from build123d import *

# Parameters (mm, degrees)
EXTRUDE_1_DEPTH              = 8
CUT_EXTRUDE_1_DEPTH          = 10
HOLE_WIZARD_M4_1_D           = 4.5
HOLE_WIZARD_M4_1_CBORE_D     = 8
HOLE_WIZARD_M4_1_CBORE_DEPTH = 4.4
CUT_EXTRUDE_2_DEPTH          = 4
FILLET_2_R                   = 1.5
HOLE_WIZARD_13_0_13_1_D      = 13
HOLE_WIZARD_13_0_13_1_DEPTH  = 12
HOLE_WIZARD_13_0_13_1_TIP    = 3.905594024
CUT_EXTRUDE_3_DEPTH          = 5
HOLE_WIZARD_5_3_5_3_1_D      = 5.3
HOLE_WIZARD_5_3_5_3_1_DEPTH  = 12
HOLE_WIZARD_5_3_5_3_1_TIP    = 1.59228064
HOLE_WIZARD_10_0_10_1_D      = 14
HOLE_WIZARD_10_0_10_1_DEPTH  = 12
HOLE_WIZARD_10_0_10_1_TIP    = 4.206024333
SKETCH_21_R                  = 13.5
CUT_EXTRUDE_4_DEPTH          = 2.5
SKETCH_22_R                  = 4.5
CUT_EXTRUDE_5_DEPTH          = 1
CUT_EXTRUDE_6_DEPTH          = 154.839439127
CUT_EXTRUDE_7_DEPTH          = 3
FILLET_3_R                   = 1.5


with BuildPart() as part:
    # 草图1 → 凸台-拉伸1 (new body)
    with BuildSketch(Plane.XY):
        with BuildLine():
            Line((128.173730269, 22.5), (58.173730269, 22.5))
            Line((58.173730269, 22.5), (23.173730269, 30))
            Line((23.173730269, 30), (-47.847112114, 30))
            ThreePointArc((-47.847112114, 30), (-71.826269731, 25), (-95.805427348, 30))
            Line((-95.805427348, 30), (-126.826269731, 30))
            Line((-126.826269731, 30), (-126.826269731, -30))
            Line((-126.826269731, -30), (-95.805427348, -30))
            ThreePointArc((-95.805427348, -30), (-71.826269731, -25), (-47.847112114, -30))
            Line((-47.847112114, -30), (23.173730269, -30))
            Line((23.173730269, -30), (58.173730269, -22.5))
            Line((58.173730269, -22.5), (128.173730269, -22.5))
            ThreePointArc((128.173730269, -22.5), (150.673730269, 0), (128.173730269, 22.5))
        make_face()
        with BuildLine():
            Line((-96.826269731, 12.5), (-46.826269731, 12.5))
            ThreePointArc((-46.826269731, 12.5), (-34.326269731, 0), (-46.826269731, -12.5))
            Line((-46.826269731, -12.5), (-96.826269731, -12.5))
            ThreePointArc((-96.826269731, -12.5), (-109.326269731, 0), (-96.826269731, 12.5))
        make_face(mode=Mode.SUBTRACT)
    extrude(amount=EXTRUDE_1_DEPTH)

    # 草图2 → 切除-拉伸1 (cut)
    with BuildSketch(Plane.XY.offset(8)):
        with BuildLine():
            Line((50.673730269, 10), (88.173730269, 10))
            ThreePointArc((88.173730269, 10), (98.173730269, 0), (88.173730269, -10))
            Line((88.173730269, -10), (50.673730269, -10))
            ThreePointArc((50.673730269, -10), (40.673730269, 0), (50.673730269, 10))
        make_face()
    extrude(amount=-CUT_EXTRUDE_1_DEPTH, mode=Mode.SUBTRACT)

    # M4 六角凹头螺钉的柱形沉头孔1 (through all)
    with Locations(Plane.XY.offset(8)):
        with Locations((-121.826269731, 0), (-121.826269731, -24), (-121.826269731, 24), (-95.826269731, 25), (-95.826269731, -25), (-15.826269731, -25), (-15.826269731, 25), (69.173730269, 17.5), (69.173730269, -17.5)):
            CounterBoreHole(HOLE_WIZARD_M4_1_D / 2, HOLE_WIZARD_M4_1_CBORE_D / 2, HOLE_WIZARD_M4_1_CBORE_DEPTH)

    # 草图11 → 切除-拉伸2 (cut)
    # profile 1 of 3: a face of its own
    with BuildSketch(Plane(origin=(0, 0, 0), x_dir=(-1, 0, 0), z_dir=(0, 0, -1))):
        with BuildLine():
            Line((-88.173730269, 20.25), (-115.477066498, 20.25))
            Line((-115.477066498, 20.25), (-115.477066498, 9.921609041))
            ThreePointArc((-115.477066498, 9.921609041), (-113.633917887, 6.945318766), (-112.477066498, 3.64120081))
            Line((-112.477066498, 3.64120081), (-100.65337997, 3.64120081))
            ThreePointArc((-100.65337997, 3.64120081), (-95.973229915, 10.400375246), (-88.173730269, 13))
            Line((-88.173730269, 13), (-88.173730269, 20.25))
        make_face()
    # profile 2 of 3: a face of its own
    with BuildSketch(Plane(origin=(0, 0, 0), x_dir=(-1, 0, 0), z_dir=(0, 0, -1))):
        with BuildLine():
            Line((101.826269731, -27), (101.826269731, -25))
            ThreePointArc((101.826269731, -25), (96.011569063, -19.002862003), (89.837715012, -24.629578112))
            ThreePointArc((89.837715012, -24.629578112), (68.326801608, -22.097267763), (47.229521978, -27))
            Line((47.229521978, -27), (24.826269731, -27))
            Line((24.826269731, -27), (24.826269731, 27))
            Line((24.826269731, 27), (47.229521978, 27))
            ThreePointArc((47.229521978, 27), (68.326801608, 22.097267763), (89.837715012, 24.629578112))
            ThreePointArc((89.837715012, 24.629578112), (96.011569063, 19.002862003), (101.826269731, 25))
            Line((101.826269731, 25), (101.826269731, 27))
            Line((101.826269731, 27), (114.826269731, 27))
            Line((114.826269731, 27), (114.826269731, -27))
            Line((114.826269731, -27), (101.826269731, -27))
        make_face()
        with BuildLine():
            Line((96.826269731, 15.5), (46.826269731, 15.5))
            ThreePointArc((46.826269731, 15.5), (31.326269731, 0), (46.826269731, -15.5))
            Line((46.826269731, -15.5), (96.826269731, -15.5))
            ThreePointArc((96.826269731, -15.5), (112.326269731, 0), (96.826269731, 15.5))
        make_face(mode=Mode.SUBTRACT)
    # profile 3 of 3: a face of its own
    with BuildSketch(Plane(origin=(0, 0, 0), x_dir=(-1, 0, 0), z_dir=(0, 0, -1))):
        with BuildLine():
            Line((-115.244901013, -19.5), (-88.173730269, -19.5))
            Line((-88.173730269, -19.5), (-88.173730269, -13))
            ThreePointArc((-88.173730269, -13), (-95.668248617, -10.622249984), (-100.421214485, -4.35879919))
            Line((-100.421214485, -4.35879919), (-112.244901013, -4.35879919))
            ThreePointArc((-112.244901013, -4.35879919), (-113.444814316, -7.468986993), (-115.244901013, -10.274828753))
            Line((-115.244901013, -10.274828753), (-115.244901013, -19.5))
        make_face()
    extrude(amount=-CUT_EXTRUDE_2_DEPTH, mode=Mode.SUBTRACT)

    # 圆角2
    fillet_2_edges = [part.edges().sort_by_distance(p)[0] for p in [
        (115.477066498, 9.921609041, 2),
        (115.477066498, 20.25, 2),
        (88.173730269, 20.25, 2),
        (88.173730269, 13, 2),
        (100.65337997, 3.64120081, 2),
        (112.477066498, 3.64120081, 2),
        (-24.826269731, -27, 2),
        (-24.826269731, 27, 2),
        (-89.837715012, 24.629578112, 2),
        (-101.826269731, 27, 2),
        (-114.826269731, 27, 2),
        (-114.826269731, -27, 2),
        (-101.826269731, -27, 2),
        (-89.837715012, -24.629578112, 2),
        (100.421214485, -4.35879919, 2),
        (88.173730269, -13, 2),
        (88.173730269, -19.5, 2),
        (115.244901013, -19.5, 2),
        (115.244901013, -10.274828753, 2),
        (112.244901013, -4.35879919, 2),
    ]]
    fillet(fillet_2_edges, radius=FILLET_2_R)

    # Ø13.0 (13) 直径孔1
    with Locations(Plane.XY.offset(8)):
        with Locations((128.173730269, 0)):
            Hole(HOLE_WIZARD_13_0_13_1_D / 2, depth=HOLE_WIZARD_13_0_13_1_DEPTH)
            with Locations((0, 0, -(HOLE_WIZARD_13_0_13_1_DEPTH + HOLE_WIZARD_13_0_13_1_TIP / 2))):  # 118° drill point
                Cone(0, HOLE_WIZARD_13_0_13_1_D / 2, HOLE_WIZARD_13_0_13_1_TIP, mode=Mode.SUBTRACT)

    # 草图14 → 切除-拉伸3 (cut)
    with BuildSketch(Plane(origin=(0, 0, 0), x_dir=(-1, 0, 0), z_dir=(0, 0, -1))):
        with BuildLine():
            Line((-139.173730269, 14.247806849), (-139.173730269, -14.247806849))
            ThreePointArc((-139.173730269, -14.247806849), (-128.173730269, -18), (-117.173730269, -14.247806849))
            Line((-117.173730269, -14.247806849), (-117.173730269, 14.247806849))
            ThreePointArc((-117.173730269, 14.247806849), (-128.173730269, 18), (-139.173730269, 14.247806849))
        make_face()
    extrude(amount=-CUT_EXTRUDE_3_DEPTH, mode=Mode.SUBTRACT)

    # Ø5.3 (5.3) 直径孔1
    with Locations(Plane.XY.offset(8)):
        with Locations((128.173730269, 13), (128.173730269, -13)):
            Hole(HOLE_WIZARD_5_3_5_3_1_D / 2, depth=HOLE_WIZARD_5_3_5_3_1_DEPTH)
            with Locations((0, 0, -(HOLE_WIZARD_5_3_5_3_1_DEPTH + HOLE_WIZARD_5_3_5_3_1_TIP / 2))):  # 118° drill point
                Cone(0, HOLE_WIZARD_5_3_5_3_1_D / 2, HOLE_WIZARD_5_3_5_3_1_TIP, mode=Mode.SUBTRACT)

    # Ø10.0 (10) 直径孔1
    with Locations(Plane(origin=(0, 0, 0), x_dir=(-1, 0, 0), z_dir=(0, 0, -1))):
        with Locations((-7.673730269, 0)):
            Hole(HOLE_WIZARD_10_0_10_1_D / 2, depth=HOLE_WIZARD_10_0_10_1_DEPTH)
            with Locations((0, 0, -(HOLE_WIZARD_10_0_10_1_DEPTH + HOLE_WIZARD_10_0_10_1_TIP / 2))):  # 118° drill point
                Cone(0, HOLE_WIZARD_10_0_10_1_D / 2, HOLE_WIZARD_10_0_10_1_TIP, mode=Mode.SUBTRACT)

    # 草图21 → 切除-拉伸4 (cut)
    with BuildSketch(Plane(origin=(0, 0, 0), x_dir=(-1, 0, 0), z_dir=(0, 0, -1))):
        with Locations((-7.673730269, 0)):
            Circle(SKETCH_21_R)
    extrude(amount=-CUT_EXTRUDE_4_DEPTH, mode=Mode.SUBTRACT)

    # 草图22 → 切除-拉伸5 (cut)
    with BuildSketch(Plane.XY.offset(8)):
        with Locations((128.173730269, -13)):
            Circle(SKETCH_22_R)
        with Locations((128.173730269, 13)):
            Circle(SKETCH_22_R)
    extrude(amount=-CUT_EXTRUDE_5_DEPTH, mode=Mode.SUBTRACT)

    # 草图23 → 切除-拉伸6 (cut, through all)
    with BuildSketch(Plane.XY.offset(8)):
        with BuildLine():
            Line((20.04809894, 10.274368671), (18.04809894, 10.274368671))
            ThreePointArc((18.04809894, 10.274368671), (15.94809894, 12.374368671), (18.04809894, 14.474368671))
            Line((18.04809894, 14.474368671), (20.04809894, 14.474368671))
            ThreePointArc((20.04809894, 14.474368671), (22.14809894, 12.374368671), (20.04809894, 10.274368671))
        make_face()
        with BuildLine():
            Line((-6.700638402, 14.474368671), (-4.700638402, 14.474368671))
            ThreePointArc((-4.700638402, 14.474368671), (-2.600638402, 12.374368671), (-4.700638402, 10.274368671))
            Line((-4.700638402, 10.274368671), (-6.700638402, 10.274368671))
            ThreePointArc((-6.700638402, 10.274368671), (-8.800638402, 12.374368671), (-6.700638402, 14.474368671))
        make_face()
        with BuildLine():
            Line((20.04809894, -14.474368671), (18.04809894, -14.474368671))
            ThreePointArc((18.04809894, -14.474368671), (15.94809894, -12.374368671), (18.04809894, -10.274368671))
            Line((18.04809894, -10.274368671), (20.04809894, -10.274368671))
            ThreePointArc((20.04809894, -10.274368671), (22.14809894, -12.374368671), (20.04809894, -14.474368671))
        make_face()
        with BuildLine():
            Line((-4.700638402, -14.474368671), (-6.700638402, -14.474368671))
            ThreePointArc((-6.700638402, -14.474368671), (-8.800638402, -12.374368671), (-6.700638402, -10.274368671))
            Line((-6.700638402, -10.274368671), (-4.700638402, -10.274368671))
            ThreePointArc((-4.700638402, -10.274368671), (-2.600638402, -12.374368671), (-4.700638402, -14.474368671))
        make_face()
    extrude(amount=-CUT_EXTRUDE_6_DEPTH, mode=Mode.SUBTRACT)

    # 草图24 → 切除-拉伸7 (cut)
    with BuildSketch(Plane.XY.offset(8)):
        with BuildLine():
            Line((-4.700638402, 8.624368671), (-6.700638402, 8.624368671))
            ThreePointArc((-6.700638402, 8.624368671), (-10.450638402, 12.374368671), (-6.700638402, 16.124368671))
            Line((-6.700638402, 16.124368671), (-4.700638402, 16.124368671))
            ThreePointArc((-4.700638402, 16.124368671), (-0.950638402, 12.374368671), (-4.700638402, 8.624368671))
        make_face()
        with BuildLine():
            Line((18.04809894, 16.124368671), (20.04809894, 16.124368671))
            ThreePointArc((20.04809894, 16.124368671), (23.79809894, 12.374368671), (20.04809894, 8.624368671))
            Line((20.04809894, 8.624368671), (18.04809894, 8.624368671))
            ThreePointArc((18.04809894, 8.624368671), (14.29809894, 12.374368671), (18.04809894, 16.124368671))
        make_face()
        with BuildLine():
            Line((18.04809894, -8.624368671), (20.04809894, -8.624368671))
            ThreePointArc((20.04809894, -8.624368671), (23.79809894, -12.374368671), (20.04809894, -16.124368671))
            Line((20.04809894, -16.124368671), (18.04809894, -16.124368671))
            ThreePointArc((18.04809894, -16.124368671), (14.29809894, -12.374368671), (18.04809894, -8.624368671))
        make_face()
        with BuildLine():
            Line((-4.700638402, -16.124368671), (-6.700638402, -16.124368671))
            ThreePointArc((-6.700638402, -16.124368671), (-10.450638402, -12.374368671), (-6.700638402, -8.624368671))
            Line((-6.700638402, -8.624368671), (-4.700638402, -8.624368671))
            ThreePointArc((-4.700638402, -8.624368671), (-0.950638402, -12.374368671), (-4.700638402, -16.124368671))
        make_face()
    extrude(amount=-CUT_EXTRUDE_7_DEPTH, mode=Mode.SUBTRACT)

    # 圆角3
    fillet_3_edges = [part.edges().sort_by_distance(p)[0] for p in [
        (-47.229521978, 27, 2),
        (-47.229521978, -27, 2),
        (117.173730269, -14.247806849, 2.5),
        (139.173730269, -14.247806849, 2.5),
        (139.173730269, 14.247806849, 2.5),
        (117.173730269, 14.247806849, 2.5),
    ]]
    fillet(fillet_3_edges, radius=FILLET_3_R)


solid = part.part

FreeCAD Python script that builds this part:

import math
import FreeCAD as App
import Part
import Sketcher


def edges_at(feature, points):
    """Names of the edges that pass closest to the given points."""
    edges = feature.Shape.Edges
    near = lambda p: min(range(len(edges)), key=lambda i: edges[i].distToShape(Part.Vertex(*p))[0])
    return sorted({f"Edge{near(p) + 1}" for p in points})

doc = App.newDocument("Part")
body = doc.addObject("PartDesign::Body", "Body")

# Sketch on XY plane
sketch1 = body.newObject("Sketcher::SketchObject", "Sketch")
sketch1.AttachmentSupport = (doc.getObject("XY_Plane"), [""])
sketch1.MapMode = "FlatFace"
sketch1.addGeometry([
    Part.LineSegment(App.Vector(128, 22, 0), App.Vector(58, 22, 0)),  # 0
    Part.LineSegment(App.Vector(58, 22, 0), App.Vector(23, 30, 0)),  # 1
    Part.LineSegment(App.Vector(23, 30, 0), App.Vector(-48, 30, 0)),  # 2
    Part.ArcOfCircle(Part.Circle(App.Vector(-72, 85, 0), App.Vector(0, 0, 1), 60), math.radians(-114), math.radians(-66)),  # 3
    Part.LineSegment(App.Vector(-96, 30, 0), App.Vector(-127, 30, 0)),  # 4
    Part.LineSegment(App.Vector(-127, 30, 0), App.Vector(-127, -30, 0)),  # 5
    Part.LineSegment(App.Vector(-127, -30, 0), App.Vector(-96, -30, 0)),  # 6
    Part.ArcOfCircle(Part.Circle(App.Vector(-72, -85, 0), App.Vector(0, 0, 1), 60), math.radians(66), math.radians(114)),  # 7
    Part.LineSegment(App.Vector(-48, -30, 0), App.Vector(23, -30, 0)),  # 8
    Part.LineSegment(App.Vector(23, -30, 0), App.Vector(58, -22, 0)),  # 9
    Part.LineSegment(App.Vector(58, -22, 0), App.Vector(128, -22, 0)),  # 10
    Part.ArcOfCircle(Part.Circle(App.Vector(128, 0, 0), App.Vector(0, 0, 1), 22), math.radians(-90), math.radians(90)),  # 11
    Part.ArcOfCircle(Part.Circle(App.Vector(-97, 0, 0), App.Vector(0, 0, 1), 12), math.radians(90), math.radians(270)),  # 12
    Part.LineSegment(App.Vector(-97, 12, 0), App.Vector(-47, 12, 0)),  # 13
    Part.ArcOfCircle(Part.Circle(App.Vector(-47, 0, 0), App.Vector(0, 0, 1), 12), math.radians(-90), math.radians(90)),  # 14
    Part.LineSegment(App.Vector(-47, -12, 0), App.Vector(-97, -12, 0)),  # 15
], False)
sketch1.addConstraint([
    Sketcher.Constraint("Coincident", 0, 2, 1, 1),
    Sketcher.Constraint("Coincident", 1, 2, 2, 1),
    Sketcher.Constraint("Coincident", 2, 2, 3, 2),
    Sketcher.Constraint("Coincident", 3, 1, 4, 1),
    Sketcher.Constraint("Coincident", 4, 2, 5, 1),
    Sketcher.Constraint("Coincident", 5, 2, 6, 1),
    Sketcher.Constraint("Coincident", 6, 2, 7, 2),
    Sketcher.Constraint("Coincident", 7, 1, 8, 1),
    Sketcher.Constraint("Coincident", 8, 2, 9, 1),
    Sketcher.Constraint("Coincident", 9, 2, 10, 1),
    Sketcher.Constraint("Tangent", 10, 2, 11, 1),
    Sketcher.Constraint("Tangent", 11, 2, 0, 1),
    Sketcher.Constraint("Tangent", 12, 1, 13, 1),
    Sketcher.Constraint("Tangent", 13, 2, 14, 2),
    Sketcher.Constraint("Tangent", 14, 1, 15, 1),
    Sketcher.Constraint("Tangent", 15, 2, 12, 2),
    Sketcher.Constraint("Horizontal", 0),
    Sketcher.Constraint("Horizontal", 2),
    Sketcher.Constraint("Horizontal", 4),
    Sketcher.Constraint("Vertical", 5),
    Sketcher.Constraint("Horizontal", 6),
    Sketcher.Constraint("Horizontal", 8),
    Sketcher.Constraint("Horizontal", 10),
    Sketcher.Constraint("Horizontal", 13),
    Sketcher.Constraint("Horizontal", 15),
    Sketcher.Constraint("Equal", 3, 7),
    Sketcher.Constraint("Symmetric", 3, 3, 7, 3, -1),
    Sketcher.Constraint("Symmetric", 1, 2, 8, 2, -1),
    Sketcher.Constraint("Symmetric", 0, 2, 9, 2, -1),
    Sketcher.Constraint("PointOnObject", 12, 3, -1),
    Sketcher.Constraint("Horizontal", 2, 2, 3, 1),
    Sketcher.Constraint("Horizontal", 6, 2, 7, 1),
    Sketcher.Constraint("Radius", 3, 60.0),
    Sketcher.Constraint("Radius", 11, 22.5),
    Sketcher.Constraint("Radius", 12, 12.5),
    Sketcher.Constraint("DistanceX", 0, 2, 0, 1, 70.0),
    Sketcher.Constraint("DistanceX", 13, 1, 13, 2, 50.0),
    Sketcher.Constraint("DistanceY", 5, 2, 5, 1, 60.0),
    Sketcher.Constraint("DistanceY", -1, 1, 3, 3, 85.0),
    Sketcher.Constraint("DistanceX", 3, 3, 11, 3, 200.0),
    Sketcher.Constraint("DistanceX", 12, 3, 3, 3, 25.0),
    Sketcher.Constraint("DistanceX", 1, 2, 0, 2, 35.0),
    Sketcher.Constraint("DistanceX", 4, 2, 12, 3, 30.0),
    Sketcher.Constraint("DistanceX", 3, 3, -1, 1, 71.82627),
])
pad1 = body.newObject("PartDesign::Pad", "Pad")
pad1.Profile = sketch1
pad1.Length = 8

# Sketch on XY plane
sketch2 = body.newObject("Sketcher::SketchObject", "Sketch001")
sketch2.AttachmentSupport = (doc.getObject("XY_Plane"), [""])
sketch2.MapMode = "FlatFace"
sketch2.AttachmentOffset = App.Placement(App.Vector(0, 0, 8), App.Rotation())
sketch2.addGeometry([
    Part.LineSegment(App.Vector(88, 10, 0), App.Vector(51, 10, 0)),
    Part.ArcOfCircle(Part.Circle(App.Vector(51, 0, 0), App.Vector(0, 0, 1), 10), math.radians(90), math.radians(270)),
    Part.LineSegment(App.Vector(51, -10, 0), App.Vector(88, -10, 0)),
    Part.ArcOfCircle(Part.Circle(App.Vector(88, 0, 0), App.Vector(0, 0, 1), 10), math.radians(-90), math.radians(90)),
], False)
sketch2.addConstraint([
    Sketcher.Constraint("Tangent", 0, 2, 1, 1),
    Sketcher.Constraint("Tangent", 1, 2, 2, 1),
    Sketcher.Constraint("Tangent", 2, 2, 3, 1),
    Sketcher.Constraint("Tangent", 3, 2, 0, 1),
    Sketcher.Constraint("Horizontal", 0),
    Sketcher.Constraint("Horizontal", 2),
    Sketcher.Constraint("PointOnObject", 1, 3, -1),
    Sketcher.Constraint("Radius", 1, 10.0),
    Sketcher.Constraint("DistanceX", 0, 2, 0, 1, 37.5),
    Sketcher.Constraint("DistanceX", -1, 1, 1, 3, 50.67373),
])
pocket1 = body.newObject("PartDesign::Pocket", "Pocket")
pocket1.Profile = sketch2
pocket1.Length = 10

# Sketch on XY plane
sketch3 = body.newObject("Sketcher::SketchObject", "Sketch002")
sketch3.AttachmentSupport = (doc.getObject("XY_Plane"), [""])
sketch3.MapMode = "FlatFace"
sketch3.AttachmentOffset = App.Placement(App.Vector(0, 0, 8), App.Rotation())
sketch3.addGeometry([
    Part.Circle(App.Vector(-121.8, 0, 0), App.Vector(0, 0, 1), 2.2),  # 0
    Part.Circle(App.Vector(-121.8, -24, 0), App.Vector(0, 0, 1), 2.2),  # 1
    Part.Circle(App.Vector(-121.8, 24, 0), App.Vector(0, 0, 1), 2.2),  # 2
    Part.Circle(App.Vector(-95.8, 25, 0), App.Vector(0, 0, 1), 2.2),  # 3
    Part.Circle(App.Vector(-95.8, -25, 0), App.Vector(0, 0, 1), 2.2),  # 4
    Part.Circle(App.Vector(-15.8, -25, 0), App.Vector(0, 0, 1), 2.2),  # 5
    Part.Circle(App.Vector(-15.8, 25, 0), App.Vector(0, 0, 1), 2.2),  # 6
    Part.Circle(App.Vector(69.2, 17.5, 0), App.Vector(0, 0, 1), 2.2),  # 7
    Part.Circle(App.Vector(69.2, -17.5, 0), App.Vector(0, 0, 1), 2.2),  # 8
], False)
sketch3.addConstraint([
    Sketcher.Constraint("Equal", 0, 1),
    Sketcher.Constraint("Equal", 1, 2),
    Sketcher.Constraint("Equal", 2, 3),
    Sketcher.Constraint("Equal", 3, 4),
    Sketcher.Constraint("Equal", 4, 5),
    Sketcher.Constraint("Equal", 5, 6),
    Sketcher.Constraint("Equal", 6, 7),
    Sketcher.Constraint("Equal", 7, 8),
    Sketcher.Constraint("Symmetric", 1, 3, 2, 3, -1),
    Sketcher.Constraint("Symmetric", 3, 3, 4, 3, -1),
    Sketcher.Constraint("Symmetric", 5, 3, 6, 3, -1),
    Sketcher.Constraint("Symmetric", 7, 3, 8, 3, -1),
    Sketcher.Constraint("PointOnObject", 0, 3, -1),
    Sketcher.Constraint("Horizontal", 4, 3, 5, 3),
    Sketcher.Constraint("Vertical", 0, 3, 1, 3),
    Sketcher.Constraint("Diameter", 0, 4.5),
    Sketcher.Constraint("DistanceY", 1, 3, -1, 1, 24.0),
    Sketcher.Constraint("DistanceY", -1, 1, 3, 3, 25.0),
    Sketcher.Constraint("DistanceX", 2, 3, 3, 3, 26.0),
    Sketcher.Constraint("DistanceX", 4, 3, 5, 3, 80.0),
    Sketcher.Constraint("DistanceX", 6, 3, 7, 3, 85.0),
    Sketcher.Constraint("DistanceY", 8, 3, 7, 3, 35.0),
    Sketcher.Constraint("DistanceX", 0, 3, -1, 1, 121.82627),
])
doc.recompute()
hole = body.newObject("PartDesign::Hole", "Hole")
hole.Profile = sketch3
hole.ThreadType = "None"
hole.Diameter = 4.5
hole.DepthType = "ThroughAll"
hole.HoleCutType = "Counterbore"
hole.HoleCutDiameter = 8
hole.HoleCutDepth = 4.4

# Sketch on XY plane
sketch4 = body.newObject("Sketcher::SketchObject", "Sketch003")
sketch4.AttachmentSupport = (doc.getObject("XY_Plane"), [""])
sketch4.MapMode = "FlatFace"
sketch4.addGeometry([
    Part.LineSegment(App.Vector(88.2, 20.2, 0), App.Vector(115.5, 20.2, 0)),  # 0
    Part.LineSegment(App.Vector(115.5, 20.2, 0), App.Vector(115.5, 9.9, 0)),  # 1
    Part.ArcOfCircle(Part.Circle(App.Vector(128.2, 0, 0), App.Vector(0, 0, 1), 16.1), math.radians(142), math.radians(167)),  # 2
    Part.LineSegment(App.Vector(112.5, 3.6, 0), App.Vector(100.7, 3.6, 0)),  # 3
    Part.ArcOfCircle(Part.Circle(App.Vector(88.2, 0, 0), App.Vector(0, 0, 1), 13), math.radians(16), math.radians(90)),  # 4
    Part.LineSegment(App.Vector(88.2, 13, 0), App.Vector(88.2, 20.2, 0)),  # 5
    Part.LineSegment(App.Vector(-101.8, -25, 0), App.Vector(-101.8, -27, 0)),  # 6
    Part.LineSegment(App.Vector(-101.8, -27, 0), App.Vector(-114.8, -27, 0)),  # 7
    Part.LineSegment(App.Vector(-114.8, -27, 0), App.Vector(-114.8, 27, 0)),  # 8
    Part.LineSegment(App.Vector(-114.8, 27, 0), App.Vector(-101.8, 27, 0)),  # 9
    Part.LineSegment(App.Vector(-101.8, 27, 0), App.Vector(-101.8, 25, 0)),  # 10
    Part.ArcOfCircle(Part.Circle(App.Vector(-95.8, 25, 0), App.Vector(0, 0, 1), 6), math.radians(180), math.radians(356)),  # 11
    Part.ArcOfCircle(Part.Circle(App.Vector(-71.8, 85, 0), App.Vector(0, 0, 1), 63), math.radians(-107), math.radians(-67)),  # 12
    Part.LineSegment(App.Vector(-47.2, 27, 0), App.Vector(-24.8, 27, 0)),  # 13
    Part.LineSegment(App.Vector(-24.8, 27, 0), App.Vector(-24.8, -27, 0)),  # 14
    Part.LineSegment(App.Vector(-24.8, -27, 0), App.Vector(-47.2, -27, 0)),  # 15
    Part.ArcOfCircle(Part.Circle(App.Vector(-71.8, -85, 0), App.Vector(0, 0, 1), 63), math.radians(67), math.radians(107)),  # 16
    Part.ArcOfCircle(Part.Circle(App.Vector(-95.8, -25, 0), App.Vector(0, 0, 1), 6), math.radians(4), math.radians(180)),  # 17
    Part.ArcOfCircle(Part.Circle(App.Vector(-96.8, 0, 0), App.Vector(0, 0, 1), 15.5), math.radians(90), math.radians(270)),  # 18
    Part.LineSegment(App.Vector(-96.8, -15.5, 0), App.Vector(-46.8, -15.5, 0)),  # 19
    Part.ArcOfCircle(Part.Circle(App.Vector(-46.8, 0, 0), App.Vector(0, 0, 1), 15.5), math.radians(-90), math.radians(90)),  # 20
    Part.LineSegment(App.Vector(-46.8, 15.5, 0), App.Vector(-96.8, 15.5, 0)),  # 21
    Part.LineSegment(App.Vector(115.2, -19.5, 0), App.Vector(88.2, -19.5, 0)),  # 22
    Part.LineSegment(App.Vector(88.2, -19.5, 0), App.Vector(88.2, -13, 0)),  # 23
    Part.ArcOfCircle(Part.Circle(App.Vector(88.2, 0, 0), App.Vector(0, 0, 1), 13), math.radians(-90), math.radians(-20)),  # 24
    Part.LineSegment(App.Vector(100.4, -4.4, 0), App.Vector(112.2, -4.4, 0)),  # 25
    Part.ArcOfCircle(Part.Circle(App.Vector(128.2, 0, 0), App.Vector(0, 0, 1), 16.5), math.radians(-165), math.radians(-142)),  # 26
    Part.LineSegment(App.Vector(115.2, -10.3, 0), App.Vector(115.2, -19.5, 0)),  # 27
], False)
sketch4.addConstraint([
    Sketcher.Constraint("Coincident", 0, 2, 1, 1),
    Sketcher.Constraint("Coincident", 1, 2, 2, 1),
    Sketcher.Constraint("Coincident", 2, 2, 3, 1),
    Sketcher.Constraint("Coincident", 3, 2, 4, 1),
    Sketcher.Constraint("Coincident", 4, 2, 5, 1),
    Sketcher.Constraint("Coincident", 5, 2, 0, 1),
    Sketcher.Constraint("Coincident", 6, 2, 7, 1),
    Sketcher.Constraint("Coincident", 7, 2, 8, 1),
    Sketcher.Constraint("Coincident", 8, 2, 9, 1),
    Sketcher.Constraint("Coincident", 9, 2, 10, 1),
    Sketcher.Constraint("Tangent", 10, 2, 11, 1),
    Sketcher.Constraint("Coincident", 11, 2, 12, 1),
    Sketcher.Constraint("Coincident", 12, 2, 13, 1),
    Sketcher.Constraint("Coincident", 13, 2, 14, 1),
    Sketcher.Constraint("Coincident", 14, 2, 15, 1),
    Sketcher.Constraint("Coincident", 15, 2, 16, 1),
    Sketcher.Constraint("Coincident", 16, 2, 17, 1),
    Sketcher.Constraint("Tangent", 17, 2, 6, 1),
    Sketcher.Constraint("Tangent", 18, 2, 19, 1),
    Sketcher.Constraint("Tangent", 19, 2, 20, 1),
    Sketcher.Constraint("Tangent", 20, 2, 21, 1),
    Sketcher.Constraint("Tangent", 21, 2, 18, 1),
    Sketcher.Constraint("Coincident", 22, 2, 23, 1),
    Sketcher.Constraint("Coincident", 23, 2, 24, 1),
    Sketcher.Constraint("Coincident", 24, 2, 25, 1),
    Sketcher.Constraint("Coincident", 25, 2, 26, 1),
    Sketcher.Constraint("Coincident", 26, 2, 27, 1),
    Sketcher.Constraint("Coincident", 27, 2, 22, 1),
    Sketcher.Constraint("Horizontal", 0),
    Sketcher.Constraint("Vertical", 1),
    Sketcher.Constraint("Horizontal", 3),
    Sketcher.Constraint("Vertical", 5),
    Sketcher.Constraint("Vertical", 6),
    Sketcher.Constraint("Horizontal", 7),
    Sketcher.Constraint("Vertical", 8),
    Sketcher.Constraint("Horizontal", 9),
    Sketcher.Constraint("Vertical", 10),
    Sketcher.Constraint("Horizontal", 13),
    Sketcher.Constraint("Vertical", 14),
    Sketcher.Constraint("Horizontal", 15),
    Sketcher.Constraint("Horizontal", 19),
    Sketcher.Constraint("Horizontal", 21),
    Sketcher.Constraint("Horizontal", 22),
    Sketcher.Constraint("Vertical", 23),
    Sketcher.Constraint("Horizontal", 25),
    Sketcher.Constraint("Vertical", 27),
    Sketcher.Constraint("Coincident", 24, 3, 4, 3),
    Sketcher.Constraint("Coincident", 26, 3, 2, 3),
    Sketcher.Constraint("Equal", 12, 16),
    Sketcher.Constraint("Equal", 11, 17),
    Sketcher.Constraint("Equal", 4, 24),
    Sketcher.Constraint("Symmetric", 12, 3, 16, 3, -1),
    Sketcher.Constraint("Symmetric", 11, 3, 17, 3, -1),
    Sketcher.Constraint("Symmetric", 4, 2, 23, 2, -1),
    Sketcher.Constraint("PointOnObject", 2, 3, -1),
    Sketcher.Constraint("PointOnObject", 18, 3, -1),
    Sketcher.Constraint("Horizontal", 9, 2, 12, 2),
    Sketcher.Constraint("Horizontal", 7, 2, 14, 2),
    Sketcher.Constraint("Vertical", 24, 3, 4, 2),
    Sketcher.Constraint("Vertical", 12, 2, 15, 2),
    Sketcher.Constraint("Equal", 3, 25),
    Sketcher.Constraint("Radius", 4, 13.0),
    Sketcher.Constraint("Radius", 11, 6.0),
    Sketcher.Constraint("Radius", 12, 63.0),
    Sketcher.Constraint("Radius", 18, 15.5),
    Sketcher.Constraint("DistanceX", 7, 2, 7, 1, 13.0),
    Sketcher.Constraint("DistanceX", 19, 1, 19, 2, 50.0),
    Sketcher.Constraint("DistanceY", 6, 2, 6, 1, 2.0),
    Sketcher.Constraint("DistanceY", 8, 1, 8, 2, 54.0),
    Sketcher.Constraint("DistanceY", 23, 1, 23, 2, 6.5),
    Sketcher.Constraint("DistanceY", -1, 1, 12, 3, 85.0),
    Sketcher.Constraint("DistanceX", 4, 3, 2, 3, 40.0),
    Sketcher.Constraint("DistanceX", 11, 3, 4, 3, 184.0),
    Sketcher.Constraint("DistanceX", 11, 3, 12, 3, 24.0),
    Sketcher.Constraint("DistanceX", 18, 3, 11, 3, 1.0),
    Sketcher.Constraint("DistanceX", 2, 2, 1, 2, 3.0),
    Sketcher.Constraint("DistanceX", 20, 3, 13, 2, 22.0),
    Sketcher.Constraint("DistanceY", 24, 2, 3, 2, 8.0),
    Sketcher.Constraint("DistanceX", 25, 2, 26, 2, 3.0),
    Sketcher.Constraint("DistanceY", 5, 1, 5, 2, 7.25),
    Sketcher.Constraint("Radius", 2, 16.11346),
    Sketcher.Constraint("Radius", 26, 16.51444),
    Sketcher.Constraint("DistanceX", -1, 1, 25, 2, 112.244901),
])
pocket2 = body.newObject("PartDesign::Pocket", "Pocket001")
pocket2.Profile = sketch4
pocket2.Length = 4
pocket2.Reversed = True
doc.recompute()

fillet = body.newObject("PartDesign::Fillet", "Fillet")
fillet.Base = (pocket2, edges_at(pocket2, [
    (115.477, 9.922, 2),
    (115.477, 20.25, 2),
    (88.174, 20.25, 2),
    (88.174, 13, 2),
    (100.653, 3.641, 2),
    (112.477, 3.641, 2),
    (-24.826, -27, 2),
    (-24.826, 27, 2),
    (-89.838, 24.63, 2),
    (-101.826, 27, 2),
    (-114.826, 27, 2),
    (-114.826, -27, 2),
    (-101.826, -27, 2),
    (-89.838, -24.63, 2),
    (100.421, -4.359, 2),
    (88.174, -13, 2),
    (88.174, -19.5, 2),
    (115.245, -19.5, 2),
    (115.245, -10.275, 2),
    (112.245, -4.359, 2),
]))
fillet.Radius = 1.5

# Sketch on XY plane
sketch5 = body.newObject("Sketcher::SketchObject", "Sketch004")
sketch5.AttachmentSupport = (doc.getObject("XY_Plane"), [""])
sketch5.MapMode = "FlatFace"
sketch5.AttachmentOffset = App.Placement(App.Vector(0, 0, 8), App.Rotation())
sketch5.addGeometry(Part.Circle(App.Vector(128, 0, 0), App.Vector(0, 0, 1), 6), False)
sketch5.addConstraint([
    Sketcher.Constraint("PointOnObject", 0, 3, -1),
    Sketcher.Constraint("Diameter", 0, 13.0),
    Sketcher.Constraint("DistanceX", -1, 1, 0, 3, 128.17373),
])
doc.recompute()
hole2 = body.newObject("PartDesign::Hole", "Hole001")
hole2.Profile = sketch5
hole2.ThreadType = "None"
hole2.Diameter = 13
hole2.DepthType = "Dimension"
hole2.Depth = 12
hole2.DrillPoint = "Angled"
hole2.DrillPointAngle = 118

# Sketch on XY plane
sketch6 = body.newObject("Sketcher::SketchObject", "Sketch005")
sketch6.AttachmentSupport = (doc.getObject("XY_Plane"), [""])
sketch6.MapMode = "FlatFace"
sketch6.addGeometry([
    Part.LineSegment(App.Vector(139, 14, 0), App.Vector(139, -14, 0)),
    Part.ArcOfCircle(Part.Circle(App.Vector(128, 0, 0), App.Vector(0, 0, 1), 18), math.radians(-128), math.radians(-52)),
    Part.LineSegment(App.Vector(117, -14, 0), App.Vector(117, 14, 0)),
    Part.ArcOfCircle(Part.Circle(App.Vector(128, 0, 0), App.Vector(0, 0, 1), 18), math.radians(52), math.radians(128)),
], False)
sketch6.addConstraint([
    Sketcher.Constraint("Coincident", 0, 2, 1, 2),
    Sketcher.Constraint("Coincident", 1, 1, 2, 1),
    Sketcher.Constraint("Coincident", 2, 2, 3, 2),
    Sketcher.Constraint("Coincident", 3, 1, 0, 1),
    Sketcher.Constraint("Vertical", 0),
    Sketcher.Constraint("Vertical", 2),
    Sketcher.Constraint("Coincident", 3, 3, 1, 3),
    Sketcher.Constraint("Equal", 1, 3),
    Sketcher.Constraint("PointOnObject", 1, 3, -1),
    Sketcher.Constraint("Horizontal", 0, 2, 1, 1),
    Sketcher.Constraint("Radius", 1, 18.0),
    Sketcher.Constraint("DistanceX", 3, 3, 0, 2, 11.0),
    Sketcher.Constraint("DistanceX", -1, 1, 1, 3, 128.17373),
])
pocket3 = body.newObject("PartDesign::Pocket", "Pocket002")
pocket3.Profile = sketch6
pocket3.Length = 5
pocket3.Reversed = True

# Sketch on XY plane
sketch7 = body.newObject("Sketcher::SketchObject", "Sketch006")
sketch7.AttachmentSupport = (doc.getObject("XY_Plane"), [""])
sketch7.MapMode = "FlatFace"
sketch7.AttachmentOffset = App.Placement(App.Vector(0, 0, 8), App.Rotation())
sketch7.addGeometry([
    Part.Circle(App.Vector(128.2, 13, 0), App.Vector(0, 0, 1), 2.6),
    Part.Circle(App.Vector(128.2, -13, 0), App.Vector(0, 0, 1), 2.6),
], False)
sketch7.addConstraint([
    Sketcher.Constraint("Equal", 0, 1),
    Sketcher.Constraint("Symmetric", 0, 3, 1, 3, -1),
    Sketcher.Constraint("Diameter", 0, 5.3),
    Sketcher.Constraint("DistanceY", -1, 1, 0, 3, 13.0),
    Sketcher.Constraint("DistanceX", -1, 1, 0, 3, 128.17373),
])
doc.recompute()
hole3 = body.newObject("PartDesign::Hole", "Hole002")
hole3.Profile = sketch7
hole3.ThreadType = "None"
hole3.Diameter = 5.3
hole3.DepthType = "Dimension"
hole3.Depth = 12
hole3.DrillPoint = "Angled"
hole3.DrillPointAngle = 118

# Sketch on XY plane
sketch8 = body.newObject("Sketcher::SketchObject", "Sketch007")
sketch8.AttachmentSupport = (doc.getObject("XY_Plane"), [""])
sketch8.MapMode = "FlatFace"
sketch8.addGeometry(Part.Circle(App.Vector(8, 0, 0), App.Vector(0, 0, 1), 7), False)
sketch8.addConstraint([
    Sketcher.Constraint("PointOnObject", 0, 3, -1),
    Sketcher.Constraint("Diameter", 0, 14.0),
    Sketcher.Constraint("DistanceX", -1, 1, 0, 3, 7.67373),
])
doc.recompute()
hole4 = body.newObject("PartDesign::Hole", "Hole003")
hole4.Profile = sketch8
hole4.ThreadType = "None"
hole4.Diameter = 14
hole4.DepthType = "Dimension"
hole4.Depth = 12
hole4.DrillPoint = "Angled"
hole4.DrillPointAngle = 118
hole4.Reversed = True

# Sketch on XY plane
sketch9 = body.newObject("Sketcher::SketchObject", "Sketch008")
sketch9.AttachmentSupport = (doc.getObject("XY_Plane"), [""])
sketch9.MapMode = "FlatFace"
sketch9.addGeometry(Part.Circle(App.Vector(8, 0, 0), App.Vector(0, 0, 1), 14), False)
sketch9.addConstraint([
    Sketcher.Constraint("PointOnObject", 0, 3, -1),
    Sketcher.Constraint("Diameter", 0, 27.0),
    Sketcher.Constraint("DistanceX", -1, 1, 0, 3, 7.67373),
])
pocket4 = body.newObject("PartDesign::Pocket", "Pocket003")
pocket4.Profile = sketch9
pocket4.Length = 2.5
pocket4.Reversed = True

# Sketch on XY plane
sketch10 = body.newObject("Sketcher::SketchObject", "Sketch009")
sketch10.AttachmentSupport = (doc.getObject("XY_Plane"), [""])
sketch10.MapMode = "FlatFace"
sketch10.AttachmentOffset = App.Placement(App.Vector(0, 0, 8), App.Rotation())
sketch10.addGeometry([
    Part.Circle(App.Vector(128.2, -13, 0), App.Vector(0, 0, 1), 4.5),
    Part.Circle(App.Vector(128.2, 13, 0), App.Vector(0, 0, 1), 4.5),
], False)
sketch10.addConstraint([
    Sketcher.Constraint("Equal", 0, 1),
    Sketcher.Constraint("Symmetric", 0, 3, 1, 3, -1),
    Sketcher.Constraint("Diameter", 0, 9.0),
    Sketcher.Constraint("DistanceY", 0, 3, -1, 1, 13.0),
    Sketcher.Constraint("DistanceX", -1, 1, 0, 3, 128.17373),
])
pocket5 = body.newObject("PartDesign::Pocket", "Pocket004")
pocket5.Profile = sketch10
pocket5.Length = 1

# Sketch on XY plane
sketch11 = body.newObject("Sketcher::SketchObject", "Sketch010")
sketch11.AttachmentSupport = (doc.getObject("XY_Plane"), [""])
sketch11.MapMode = "FlatFace"
sketch11.AttachmentOffset = App.Placement(App.Vector(0, 0, 8), App.Rotation())
sketch11.addGeometry([
    Part.LineSegment(App.Vector(18, 10.3, 0), App.Vector(20, 10.3, 0)),  # 0
    Part.ArcOfCircle(Part.Circle(App.Vector(20, 12.4, 0), App.Vector(0, 0, 1), 2.1), math.radians(-90), math.radians(90)),  # 1
    Part.LineSegment(App.Vector(20, 14.5, 0), App.Vector(18, 14.5, 0)),  # 2
    Part.ArcOfCircle(Part.Circle(App.Vector(18, 12.4, 0), App.Vector(0, 0, 1), 2.1), math.radians(90), math.radians(270)),  # 3
    Part.LineSegment(App.Vector(-4.7, 14.5, 0), App.Vector(-6.7, 14.5, 0)),  # 4
    Part.ArcOfCircle(Part.Circle(App.Vector(-6.7, 12.4, 0), App.Vector(0, 0, 1), 2.1), math.radians(90), math.radians(270)),  # 5
    Part.LineSegment(App.Vector(-6.7, 10.3, 0), App.Vector(-4.7, 10.3, 0)),  # 6
    Part.ArcOfCircle(Part.Circle(App.Vector(-4.7, 12.4, 0), App.Vector(0, 0, 1), 2.1), math.radians(-90), math.radians(90)),  # 7
    Part.LineSegment(App.Vector(18, -14.5, 0), App.Vector(20, -14.5, 0)),  # 8
    Part.ArcOfCircle(Part.Circle(App.Vector(20, -12.4, 0), App.Vector(0, 0, 1), 2.1), math.radians(-90), math.radians(90)),  # 9
    Part.LineSegment(App.Vector(20, -10.3, 0), App.Vector(18, -10.3, 0)),  # 10
    Part.ArcOfCircle(Part.Circle(App.Vector(18, -12.4, 0), App.Vector(0, 0, 1), 2.1), math.radians(90), math.radians(270)),  # 11
    Part.LineSegment(App.Vector(-6.7, -14.5, 0), App.Vector(-4.7, -14.5, 0)),  # 12
    Part.ArcOfCircle(Part.Circle(App.Vector(-4.7, -12.4, 0), App.Vector(0, 0, 1), 2.1), math.radians(-90), math.radians(90)),  # 13
    Part.LineSegment(App.Vector(-4.7, -10.3, 0), App.Vector(-6.7, -10.3, 0)),  # 14
    Part.ArcOfCircle(Part.Circle(App.Vector(-6.7, -12.4, 0), App.Vector(0, 0, 1), 2.1), math.radians(90), math.radians(270)),  # 15
], False)
sketch11.addConstraint([
    Sketcher.Constraint("Tangent", 0, 2, 1, 1),
    Sketcher.Constraint("Tangent", 1, 2, 2, 1),
    Sketcher.Constraint("Tangent", 2, 2, 3, 1),
    Sketcher.Constraint("Tangent", 3, 2, 0, 1),
    Sketcher.Constraint("Tangent", 4, 2, 5, 1),
    Sketcher.Constraint("Tangent", 5, 2, 6, 1),
    Sketcher.Constraint("Tangent", 6, 2, 7, 1),
    Sketcher.Constraint("Tangent", 7, 2, 4, 1),
    Sketcher.Constraint("Tangent", 8, 2, 9, 1),
    Sketcher.Constraint("Tangent", 9, 2, 10, 1),
    Sketcher.Constraint("Tangent", 10, 2, 11, 1),
    Sketcher.Constraint("Tangent", 11, 2, 8, 1),
    Sketcher.Constraint("Tangent", 12, 2, 13, 1),
    Sketcher.Constraint("Tangent", 13, 2, 14, 1),
    Sketcher.Constraint("Tangent", 14, 2, 15, 1),
    Sketcher.Constraint("Tangent", 15, 2, 12, 1),
    Sketcher.Constraint("Horizontal", 0),
    Sketcher.Constraint("Horizontal", 2),
    Sketcher.Constraint("Horizontal", 4),
    Sketcher.Constraint("Horizontal", 6),
    Sketcher.Constraint("Horizontal", 8),
    Sketcher.Constraint("Horizontal", 10),
    Sketcher.Constraint("Horizontal", 12),
    Sketcher.Constraint("Horizontal", 14),
    Sketcher.Constraint("Equal", 3, 5),
    Sketcher.Constraint("Equal", 7, 9),
    Sketcher.Constraint("Equal", 11, 13),
    Sketcher.Constraint("Symmetric", 1, 3, 9, 3, -1),
    Sketcher.Constraint("Symmetric", 7, 3, 13, 3, -1),
    Sketcher.Constraint("Horizontal", 3, 3, 5, 3),
    Sketcher.Constraint("Vertical", 3, 3, 11, 3),
    Sketcher.Constraint("Vertical", 5, 3, 15, 3),
    Sketcher.Constraint("Equal", 2, 4),
    Sketcher.Constraint("Radius", 1, 2.1),
    Sketcher.Constraint("DistanceX", 0, 1, 0, 2, 2.0),
    Sketcher.Constraint("DistanceX", -1, 1, 1, 3, 20.048099),
    Sketcher.Constraint("DistanceY", -1, 1, 1, 3, 12.374369),
    Sketcher.Constraint("DistanceX", 5, 3, -1, 1, 6.700638),
])
pocket6 = body.newObject("PartDesign::Pocket", "Pocket005")
pocket6.Profile = sketch11
pocket6.Type = "ThroughAll"

# Sketch on XY plane
sketch12 = body.newObject("Sketcher::SketchObject", "Sketch011")
sketch12.AttachmentSupport = (doc.getObject("XY_Plane"), [""])
sketch12.MapMode = "FlatFace"
sketch12.AttachmentOffset = App.Placement(App.Vector(0, 0, 8), App.Rotation())
sketch12.addGeometry([
    Part.LineSegment(App.Vector(-6.7, 8.6, 0), App.Vector(-4.7, 8.6, 0)),  # 0
    Part.ArcOfCircle(Part.Circle(App.Vector(-4.7, 12.4, 0), App.Vector(0, 0, 1), 3.8), math.radians(-90), math.radians(90)),  # 1
    Part.LineSegment(App.Vector(-4.7, 16.1, 0), App.Vector(-6.7, 16.1, 0)),  # 2
    Part.ArcOfCircle(Part.Circle(App.Vector(-6.7, 12.4, 0), App.Vector(0, 0, 1), 3.8), math.radians(90), math.radians(270)),  # 3
    Part.LineSegment(App.Vector(20, 16.1, 0), App.Vector(18, 16.1, 0)),  # 4
    Part.ArcOfCircle(Part.Circle(App.Vector(18, 12.4, 0), App.Vector(0, 0, 1), 3.8), math.radians(90), math.radians(270)),  # 5
    Part.LineSegment(App.Vector(18, 8.6, 0), App.Vector(20, 8.6, 0)),  # 6
    Part.ArcOfCircle(Part.Circle(App.Vector(20, 12.4, 0), App.Vector(0, 0, 1), 3.8), math.radians(-90), math.radians(90)),  # 7
    Part.LineSegment(App.Vector(20, -8.6, 0), App.Vector(18, -8.6, 0)),  # 8
    Part.ArcOfCircle(Part.Circle(App.Vector(18, -12.4, 0), App.Vector(0, 0, 1), 3.8), math.radians(90), math.radians(270)),  # 9
    Part.LineSegment(App.Vector(18, -16.1, 0), App.Vector(20, -16.1, 0)),  # 10
    Part.ArcOfCircle(Part.Circle(App.Vector(20, -12.4, 0), App.Vector(0, 0, 1), 3.8), math.radians(-90), math.radians(90)),  # 11
    Part.LineSegment(App.Vector(-6.7, -16.1, 0), App.Vector(-4.7, -16.1, 0)),  # 12
    Part.ArcOfCircle(Part.Circle(App.Vector(-4.7, -12.4, 0), App.Vector(0, 0, 1), 3.8), math.radians(-90), math.radians(90)),  # 13
    Part.LineSegment(App.Vector(-4.7, -8.6, 0), App.Vector(-6.7, -8.6, 0)),  # 14
    Part.ArcOfCircle(Part.Circle(App.Vector(-6.7, -12.4, 0), App.Vector(0, 0, 1), 3.8), math.radians(90), math.radians(270)),  # 15
], False)
sketch12.addConstraint([
    Sketcher.Constraint("Tangent", 0, 2, 1, 1),
    Sketcher.Constraint("Tangent", 1, 2, 2, 1),
    Sketcher.Constraint("Tangent", 2, 2, 3, 1),
    Sketcher.Constraint("Tangent", 3, 2, 0, 1),
    Sketcher.Constraint("Tangent", 4, 2, 5, 1),
    Sketcher.Constraint("Tangent", 5, 2, 6, 1),
    Sketcher.Constraint("Tangent", 6, 2, 7, 1),
    Sketcher.Constraint("Tangent", 7, 2, 4, 1),
    Sketcher.Constraint("Tangent", 8, 2, 9, 1),
    Sketcher.Constraint("Tangent", 9, 2, 10, 1),
    Sketcher.Constraint("Tangent", 10, 2, 11, 1),
    Sketcher.Constraint("Tangent", 11, 2, 8, 1),
    Sketcher.Constraint("Tangent", 12, 2, 13, 1),
    Sketcher.Constraint("Tangent", 13, 2, 14, 1),
    Sketcher.Constraint("Tangent", 14, 2, 15, 1),
    Sketcher.Constraint("Tangent", 15, 2, 12, 1),
    Sketcher.Constraint("Horizontal", 0),
    Sketcher.Constraint("Horizontal", 2),
    Sketcher.Constraint("Horizontal", 4),
    Sketcher.Constraint("Horizontal", 6),
    Sketcher.Constraint("Horizontal", 8),
    Sketcher.Constraint("Horizontal", 10),
    Sketcher.Constraint("Horizontal", 12),
    Sketcher.Constraint("Horizontal", 14),
    Sketcher.Constraint("Equal", 3, 5),
    Sketcher.Constraint("Equal", 7, 9),
    Sketcher.Constraint("Equal", 11, 13),
    Sketcher.Constraint("Symmetric", 5, 3, 9, 3, -1),
    Sketcher.Constraint("Symmetric", 1, 3, 13, 3, -1),
    Sketcher.Constraint("Horizontal", 3, 3, 5, 3),
    Sketcher.Constraint("Vertical", 7, 3, 11, 3),
    Sketcher.Constraint("Vertical", 3, 3, 15, 3),
    Sketcher.Constraint("Equal", 2, 4),
    Sketcher.Constraint("DistanceX", 0, 1, 0, 2, 2.0),
    Sketcher.Constraint("Radius", 1, 3.75),
    Sketcher.Constraint("DistanceX", -1, 1, 5, 3, 18.048099),
    Sketcher.Constraint("DistanceX", 1, 3, -1, 1, 4.700638),
    Sketcher.Constraint("DistanceY", -1, 1, 1, 3, 12.374369),
])
pocket7 = body.newObject("PartDesign::Pocket", "Pocket006")
pocket7.Profile = sketch12
pocket7.Length = 3
doc.recompute()

fillet2 = body.newObject("PartDesign::Fillet", "Fillet001")
fillet2.Base = (pocket7, edges_at(pocket7, [
    (-47.23, 27, 2),
    (-47.23, -27, 2),
    (117.174, -14.248, 2.5),
    (139.174, -14.248, 2.5),
    (139.174, 14.248, 2.5),
    (117.174, 14.248, 2.5),
]))
fillet2.Radius = 1.5

doc.recompute()
